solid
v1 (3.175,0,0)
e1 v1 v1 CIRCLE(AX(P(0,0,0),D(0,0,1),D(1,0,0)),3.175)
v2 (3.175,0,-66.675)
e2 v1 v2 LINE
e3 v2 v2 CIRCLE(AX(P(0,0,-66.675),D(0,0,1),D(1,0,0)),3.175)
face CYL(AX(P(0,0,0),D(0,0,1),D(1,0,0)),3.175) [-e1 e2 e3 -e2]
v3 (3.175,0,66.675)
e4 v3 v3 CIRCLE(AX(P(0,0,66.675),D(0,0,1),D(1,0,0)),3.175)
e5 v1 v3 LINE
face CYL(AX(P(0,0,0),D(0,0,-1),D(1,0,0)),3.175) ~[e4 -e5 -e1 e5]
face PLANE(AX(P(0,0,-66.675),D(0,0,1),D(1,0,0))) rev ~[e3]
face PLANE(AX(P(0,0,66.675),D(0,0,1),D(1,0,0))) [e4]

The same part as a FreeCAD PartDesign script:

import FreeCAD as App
import Part
import Sketcher

V = App.Vector
Q = App.Units.Quantity

doc = App.newDocument("Part")
params = doc.addObject("Spreadsheet::Sheet", "Params")
for row, (alias, value) in enumerate([
    ("sketch1_diameter", "0.25 in"),
    ("pad1_length", "5.25 in"),
], start=1):
    params.set(f"A{row}", alias)
    params.set(f"B{row}", "=" + value)
    params.setAlias(f"B{row}", alias)

body = doc.addObject("PartDesign::Body", "Body")

# Sketch on XY plane
sketch1 = body.newObject("Sketcher::SketchObject", "Sketch")
sketch1.AttachmentSupport = (doc.getObject("XY_Plane"), [""])
sketch1.MapMode = "FlatFace"
sketch1.addGeometry(Part.Circle(V(0, 0, 0), V(0, 0, 1), 3.2), False)
sketch1.addConstraint([
    Sketcher.Constraint("Coincident", 0, 3, -1, 1),
    Sketcher.Constraint("Diameter", 0, Q("0.25 in")),
])
sketch1.setExpression("Constraints[1]", "Params.sketch1_diameter")
pad1 = body.newObject("PartDesign::Pad", "Pad")
pad1.Profile = sketch1
pad1.setExpression("Length", "Params.pad1_length")
pad1.Midplane = True

doc.recompute()
